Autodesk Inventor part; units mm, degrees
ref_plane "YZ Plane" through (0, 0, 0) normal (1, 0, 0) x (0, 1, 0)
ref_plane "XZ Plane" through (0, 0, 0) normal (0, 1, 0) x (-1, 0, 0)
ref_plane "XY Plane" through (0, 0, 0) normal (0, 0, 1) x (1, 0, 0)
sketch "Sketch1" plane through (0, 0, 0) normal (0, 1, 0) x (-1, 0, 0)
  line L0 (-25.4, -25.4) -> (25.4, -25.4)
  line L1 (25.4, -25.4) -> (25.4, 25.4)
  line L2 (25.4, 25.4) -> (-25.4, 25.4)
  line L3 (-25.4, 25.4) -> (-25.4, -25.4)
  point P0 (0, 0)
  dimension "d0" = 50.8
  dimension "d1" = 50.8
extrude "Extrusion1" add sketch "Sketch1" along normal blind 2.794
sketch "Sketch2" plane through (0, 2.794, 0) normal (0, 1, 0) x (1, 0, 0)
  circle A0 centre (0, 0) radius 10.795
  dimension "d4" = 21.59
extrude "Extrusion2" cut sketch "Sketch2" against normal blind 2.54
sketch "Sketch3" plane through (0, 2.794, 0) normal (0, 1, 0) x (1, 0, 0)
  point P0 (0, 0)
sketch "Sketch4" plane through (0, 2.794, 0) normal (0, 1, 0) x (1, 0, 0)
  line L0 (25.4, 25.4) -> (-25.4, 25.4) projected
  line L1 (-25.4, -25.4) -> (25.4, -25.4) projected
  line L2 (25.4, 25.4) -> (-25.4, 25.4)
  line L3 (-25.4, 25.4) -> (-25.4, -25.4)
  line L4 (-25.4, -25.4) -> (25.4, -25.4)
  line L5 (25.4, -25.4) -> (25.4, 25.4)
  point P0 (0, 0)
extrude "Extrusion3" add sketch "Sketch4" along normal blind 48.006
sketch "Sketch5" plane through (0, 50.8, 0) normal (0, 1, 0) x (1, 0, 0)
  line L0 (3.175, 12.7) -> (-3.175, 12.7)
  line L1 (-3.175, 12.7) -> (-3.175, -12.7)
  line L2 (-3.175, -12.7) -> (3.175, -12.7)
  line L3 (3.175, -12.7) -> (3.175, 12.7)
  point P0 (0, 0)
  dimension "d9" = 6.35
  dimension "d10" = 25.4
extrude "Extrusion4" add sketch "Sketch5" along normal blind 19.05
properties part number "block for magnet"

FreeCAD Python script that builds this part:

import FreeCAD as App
import Part
import Sketcher
Q = App.Units.Quantity

doc = App.newDocument("Part")
body = doc.addObject("PartDesign::Body", "Body")

sketch1 = body.newObject("Sketcher::SketchObject", "Sketch")
sketch1.AttachmentSupport = (doc.getObject("XZ_Plane"), [""])
sketch1.MapMode = "FlatFace"
sketch1.addGeometry([
    Part.LineSegment(App.Vector(25, 25, 0), App.Vector(25, -25, 0)),
    Part.LineSegment(App.Vector(25, -25, 0), App.Vector(-25, -25, 0)),
    Part.LineSegment(App.Vector(-25, -25, 0), App.Vector(-25, 25, 0)),
    Part.LineSegment(App.Vector(-25, 25, 0), App.Vector(25, 25, 0)),
], False)
sketch1.addConstraint([
    Sketcher.Constraint("Coincident", 0, 2, 1, 1),
    Sketcher.Constraint("Coincident", 1, 2, 2, 1),
    Sketcher.Constraint("Coincident", 2, 2, 3, 1),
    Sketcher.Constraint("Coincident", 3, 2, 0, 1),
    Sketcher.Constraint("Vertical", 0),
    Sketcher.Constraint("Horizontal", 1),
    Sketcher.Constraint("Vertical", 2),
    Sketcher.Constraint("Horizontal", 3),
    Sketcher.Constraint("Symmetric", 0, 2, 2, 2, -1, 1),
    Sketcher.Constraint("Equal", 3, 0),
    Sketcher.Constraint("DistanceX", 1, 2, 1, 1, Q("2 in")),
])
pad1 = body.newObject("PartDesign::Pad", "Pad")
pad1.Profile = sketch1
pad1.Length = Q("0.11 in")
pad1.Reversed = True

sketch2 = body.newObject("Sketcher::SketchObject", "Sketch001")
sketch2.AttachmentSupport = (doc.getObject("XZ_Plane"), [""])
sketch2.MapMode = "FlatFace"
sketch2.AttachmentOffset = App.Placement(App.Vector(0, 0, -0.11 * 25.4), App.Rotation())
sketch2.addGeometry(Part.Circle(App.Vector(0, 0, 0), App.Vector(0, 0, 1), 11), False)
sketch2.addConstraint([
    Sketcher.Constraint("Coincident", 0, 3, -1, 1),
    Sketcher.Constraint("Diameter", 0, Q("0.85 in")),
])
pocket1 = body.newObject("PartDesign::Pocket", "Pocket")
pocket1.Profile = sketch2
pocket1.Length = Q("0.1 in")
pocket1.Reversed = True

sketch3 = body.newObject("Sketcher::SketchObject", "Sketch002")
sketch3.AttachmentSupport = (doc.getObject("XZ_Plane"), [""])
sketch3.MapMode = "FlatFace"
sketch3.AttachmentOffset = App.Placement(App.Vector(0, 0, -0.11 * 25.4), App.Rotation())
sketch3.addGeometry([
    Part.LineSegment(App.Vector(25, 25, 0), App.Vector(25, -25, 0)),
    Part.LineSegment(App.Vector(25, -25, 0), App.Vector(-25, -25, 0)),
    Part.LineSegment(App.Vector(-25, -25, 0), App.Vector(-25, 25, 0)),
    Part.LineSegment(App.Vector(-25, 25, 0), App.Vector(25, 25, 0)),
], False)
sketch3.addConstraint([
    Sketcher.Constraint("Coincident", 0, 2, 1, 1),
    Sketcher.Constraint("Coincident", 1, 2, 2, 1),
    Sketcher.Constraint("Coincident", 2, 2, 3, 1),
    Sketcher.Constraint("Coincident", 3, 2, 0, 1),
    Sketcher.Constraint("Vertical", 0),
    Sketcher.Constraint("Horizontal", 1),
    Sketcher.Constraint("Vertical", 2),
    Sketcher.Constraint("Horizontal", 3),
    Sketcher.Constraint("Symmetric", 0, 2, 2, 2, -1, 1),
    Sketcher.Constraint("Equal", 3, 0),
    Sketcher.Constraint("DistanceX", 1, 2, 1, 1, Q("2 in")),
])
pad2 = body.newObject("PartDesign::Pad", "Pad001")
pad2.Profile = sketch3
pad2.Length = Q("1.89 in")
pad2.Reversed = True

sketch4 = body.newObject("Sketcher::SketchObject", "Sketch003")
sketch4.AttachmentSupport = (doc.getObject("XZ_Plane"), [""])
sketch4.MapMode = "FlatFace"
sketch4.AttachmentOffset = App.Placement(App.Vector(0, 0, -2 * 25.4), App.Rotation())
sketch4.addGeometry([
    Part.LineSegment(App.Vector(3, 13, 0), App.Vector(3, -13, 0)),
    Part.LineSegment(App.Vector(3, -13, 0), App.Vector(-3, -13, 0)),
    Part.LineSegment(App.Vector(-3, -13, 0), App.Vector(-3, 13, 0)),
    Part.LineSegment(App.Vector(-3, 13, 0), App.Vector(3, 13, 0)),
], False)
sketch4.addConstraint([
    Sketcher.Constraint("Coincident", 0, 2, 1, 1),
    Sketcher.Constraint("Coincident", 1, 2, 2, 1),
    Sketcher.Constraint("Coincident", 2, 2, 3, 1),
    Sketcher.Constraint("Coincident", 3, 2, 0, 1),
    Sketcher.Constraint("Vertical", 0),
    Sketcher.Constraint("Horizontal", 1),
    Sketcher.Constraint("Vertical", 2),
    Sketcher.Constraint("Horizontal", 3),
    Sketcher.Constraint("Symmetric", 0, 2, 2, 2, -1, 1),
    Sketcher.Constraint("DistanceY", 0, 2, 0, 1, Q("1 in")),
    Sketcher.Constraint("DistanceX", 1, 2, 1, 1, Q("0.25 in")),
])
pad3 = body.newObject("PartDesign::Pad", "Pad002")
pad3.Profile = sketch4
pad3.Length = Q("0.75 in")
pad3.Reversed = True

doc.recompute()
